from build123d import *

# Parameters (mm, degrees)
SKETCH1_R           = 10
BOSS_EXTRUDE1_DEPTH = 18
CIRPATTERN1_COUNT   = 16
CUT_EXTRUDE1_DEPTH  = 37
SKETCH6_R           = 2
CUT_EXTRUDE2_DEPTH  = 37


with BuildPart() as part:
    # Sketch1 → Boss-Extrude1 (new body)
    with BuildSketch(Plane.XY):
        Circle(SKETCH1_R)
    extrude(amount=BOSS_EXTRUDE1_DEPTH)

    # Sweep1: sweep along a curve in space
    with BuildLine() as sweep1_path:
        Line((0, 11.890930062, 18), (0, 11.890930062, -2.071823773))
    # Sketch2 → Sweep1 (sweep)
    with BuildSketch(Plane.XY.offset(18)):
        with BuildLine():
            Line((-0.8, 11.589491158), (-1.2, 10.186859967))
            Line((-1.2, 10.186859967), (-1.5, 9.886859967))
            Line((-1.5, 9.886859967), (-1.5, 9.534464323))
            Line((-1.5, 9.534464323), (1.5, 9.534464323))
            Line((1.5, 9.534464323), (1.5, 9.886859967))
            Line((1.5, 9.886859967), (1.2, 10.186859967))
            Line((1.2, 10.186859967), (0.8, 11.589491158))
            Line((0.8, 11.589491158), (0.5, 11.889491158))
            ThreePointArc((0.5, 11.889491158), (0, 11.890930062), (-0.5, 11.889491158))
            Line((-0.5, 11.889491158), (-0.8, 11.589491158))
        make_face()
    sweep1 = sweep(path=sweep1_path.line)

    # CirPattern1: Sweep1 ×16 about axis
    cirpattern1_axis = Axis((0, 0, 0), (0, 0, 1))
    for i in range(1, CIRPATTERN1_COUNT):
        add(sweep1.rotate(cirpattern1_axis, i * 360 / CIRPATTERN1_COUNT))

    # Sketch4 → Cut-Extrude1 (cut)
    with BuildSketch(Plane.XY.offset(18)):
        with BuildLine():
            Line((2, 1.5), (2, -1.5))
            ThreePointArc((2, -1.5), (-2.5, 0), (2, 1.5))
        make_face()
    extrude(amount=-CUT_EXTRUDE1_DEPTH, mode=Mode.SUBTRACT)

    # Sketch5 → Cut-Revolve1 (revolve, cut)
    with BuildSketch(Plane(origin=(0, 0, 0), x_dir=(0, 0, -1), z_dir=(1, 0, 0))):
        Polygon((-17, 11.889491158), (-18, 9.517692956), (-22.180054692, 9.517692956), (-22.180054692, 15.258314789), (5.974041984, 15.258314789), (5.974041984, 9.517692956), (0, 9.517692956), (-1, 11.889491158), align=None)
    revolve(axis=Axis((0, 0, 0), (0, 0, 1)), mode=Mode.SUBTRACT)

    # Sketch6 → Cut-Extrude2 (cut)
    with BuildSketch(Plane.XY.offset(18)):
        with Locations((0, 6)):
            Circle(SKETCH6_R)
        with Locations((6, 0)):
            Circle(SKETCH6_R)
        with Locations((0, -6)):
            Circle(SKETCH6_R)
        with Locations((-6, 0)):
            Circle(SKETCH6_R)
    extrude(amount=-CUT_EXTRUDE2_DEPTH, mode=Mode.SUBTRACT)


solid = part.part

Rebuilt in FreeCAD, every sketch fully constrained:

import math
import FreeCAD as App
import Part
import Sketcher
from FreeCAD import Vector

doc = App.newDocument("Part")
body = doc.addObject("PartDesign::Body", "Body")

# Sketch on XY plane
sketch1 = body.newObject("Sketcher::SketchObject", "Sketch")
sketch1.AttachmentSupport = (doc.getObject("XY_Plane"), [""])
sketch1.MapMode = "FlatFace"
sketch1.addGeometry(Part.Circle(Vector(0, 0, 0), Vector(0, 0, 1), 10), False)
sketch1.addConstraint(Sketcher.Constraint("Coincident", 0, 3, -1, 1))
sketch1.addConstraint(Sketcher.Constraint("Diameter", 0, 20.0))
pad1 = body.newObject("PartDesign::Pad", "Pad")
pad1.Profile = sketch1
pad1.Length = 18

# Sketch on XY plane
sketch2 = body.newObject("Sketcher::SketchObject", "Sketch001")
sketch2.AttachmentSupport = (doc.getObject("XY_Plane"), [""])
sketch2.MapMode = "FlatFace"
sketch2.AttachmentOffset = App.Placement(Vector(0, 0, 18), App.Rotation())
sketch2.addGeometry(Part.LineSegment(Vector(-0.8, 11.59, 0), Vector(-1.2, 10.19, 0)), False)
sketch2.addGeometry(Part.LineSegment(Vector(-1.2, 10.19, 0), Vector(-1.5, 9.89, 0)), False)
sketch2.addGeometry(Part.LineSegment(Vector(-1.5, 9.89, 0), Vector(-1.5, 9.53, 0)), False)
sketch2.addGeometry(Part.LineSegment(Vector(-1.5, 9.53, 0), Vector(1.5, 9.53, 0)), False)
sketch2.addGeometry(Part.LineSegment(Vector(1.5, 9.53, 0), Vector(1.5, 9.89, 0)), False)
sketch2.addGeometry(Part.LineSegment(Vector(1.5, 9.89, 0), Vector(1.2, 10.19, 0)), False)
sketch2.addGeometry(Part.LineSegment(Vector(1.2, 10.19, 0), Vector(0.8, 11.59, 0)), False)
sketch2.addGeometry(Part.LineSegment(Vector(0.8, 11.59, 0), Vector(0.5, 11.89, 0)), False)
sketch2.addGeometry(Part.ArcOfCircle(Part.Circle(Vector(0, -74.98, 0), Vector(0, 0, 1), 86.87), math.radians(89.67), math.radians(90.33)), False)
sketch2.addGeometry(Part.LineSegment(Vector(-0.5, 11.89, 0), Vector(-0.8, 11.59, 0)), False)
sketch2.addConstraint(Sketcher.Constraint("Coincident", 0, 2, 1, 1))
sketch2.addConstraint(Sketcher.Constraint("Coincident", 1, 2, 2, 1))
sketch2.addConstraint(Sketcher.Constraint("Coincident", 2, 2, 3, 1))
sketch2.addConstraint(Sketcher.Constraint("Coincident", 3, 2, 4, 1))
sketch2.addConstraint(Sketcher.Constraint("Coincident", 4, 2, 5, 1))
sketch2.addConstraint(Sketcher.Constraint("Coincident", 5, 2, 6, 1))
sketch2.addConstraint(Sketcher.Constraint("Coincident", 6, 2, 7, 1))
sketch2.addConstraint(Sketcher.Constraint("Coincident", 7, 2, 8, 1))
sketch2.addConstraint(Sketcher.Constraint("Coincident", 8, 2, 9, 1))
sketch2.addConstraint(Sketcher.Constraint("Coincident", 9, 2, 0, 1))
sketch2.addConstraint(Sketcher.Constraint("Vertical", 2))
sketch2.addConstraint(Sketcher.Constraint("Horizontal", 3))
sketch2.addConstraint(Sketcher.Constraint("Vertical", 4))
sketch2.addConstraint(Sketcher.Constraint("Symmetric", 1, 2, 4, 2, -2))
sketch2.addConstraint(Sketcher.Constraint("Symmetric", 0, 2, 5, 2, -2))
sketch2.addConstraint(Sketcher.Constraint("Symmetric", 7, 2, 8, 2, -2))
sketch2.addConstraint(Sketcher.Constraint("Symmetric", 6, 2, 9, 2, -2))
sketch2.addConstraint(Sketcher.Constraint("Perpendicular", 1, 5))
sketch2.addConstraint(Sketcher.Constraint("Parallel", 5, 7))
sketch2.addConstraint(Sketcher.Constraint("Equal", 5, 7))
sketch2.addConstraint(Sketcher.Constraint("DistanceX", 3, 1, 3, 2, 3.0))
sketch2.addConstraint(Sketcher.Constraint("DistanceX", 0, 2, 6, 2, 2.0))
sketch2.addConstraint(Sketcher.Constraint("DistanceX", 0, 2, -1, 1, 1.2))
sketch2.addConstraint(Sketcher.Constraint("Radius", 8, 86.872394))
sketch2.addConstraint(Sketcher.Constraint("DistanceY", 2, 2, 2, 1, 0.352396))
sketch2.addConstraint(Sketcher.Constraint("DistanceY", -1, 1, 0, 2, 10.18686))
sketch2.addConstraint(Sketcher.Constraint("DistanceY", -1, 1, 6, 2, 11.589491))

# Sketch on XZ plane
sketch3 = body.newObject("Sketcher::SketchObject", "Sketch002")
sketch3.AttachmentSupport = (doc.getObject("XZ_Plane"), [""])
sketch3.MapMode = "FlatFace"
sketch3.AttachmentOffset = App.Placement(Vector(0, 0, -11.89093), App.Rotation())
sketch3.addGeometry(Part.LineSegment(Vector(0, 18, 0), Vector(0, -2, 0)), False)
sketch3.addConstraint(Sketcher.Constraint("Vertical", 0))
sketch3.addConstraint(Sketcher.Constraint("PointOnObject", 0, 1, -2))
sketch3.addConstraint(Sketcher.Constraint("DistanceY", -1, 1, 0, 1, 18.0))
sketch3.addConstraint(Sketcher.Constraint("DistanceY", 0, 2, 0, 1, 20.071824))
doc.recompute()

additivepipe = body.newObject("PartDesign::AdditivePipe", "AdditivePipe")
additivepipe.Profile = sketch2
additivepipe.Spine = (sketch3, ["Edge1"])
doc.recompute()

polarpattern = body.newObject("PartDesign::PolarPattern", "PolarPattern")
polarpattern.Originals = [additivepipe]
polarpattern.Axis = (doc.getObject("Z_Axis"), [""])
polarpattern.Angle = 360
polarpattern.Occurrences = 16
body.Tip = polarpattern

# Sketch on XY plane
sketch4 = body.newObject("Sketcher::SketchObject", "Sketch003")
sketch4.AttachmentSupport = (doc.getObject("XY_Plane"), [""])
sketch4.MapMode = "FlatFace"
sketch4.AttachmentOffset = App.Placement(Vector(0, 0, 18), App.Rotation())
sketch4.addGeometry(Part.LineSegment(Vector(2, -1.5, 0), Vector(2, 1.5, 0)), False)
sketch4.addGeometry(Part.ArcOfCircle(Part.Circle(Vector(0, 0, 0), Vector(0, 0, 1), 2.5), math.radians(37), math.radians(323)), False)
sketch4.addConstraint(Sketcher.Constraint("Coincident", 0, 1, 1, 2))
sketch4.addConstraint(Sketcher.Constraint("Coincident", 1, 1, 0, 2))
sketch4.addConstraint(Sketcher.Constraint("Vertical", 0))
sketch4.addConstraint(Sketcher.Constraint("Coincident", 1, 3, -1, 1))
sketch4.addConstraint(Sketcher.Constraint("Radius", 1, 2.5))
sketch4.addConstraint(Sketcher.Constraint("DistanceY", 0, 1, 0, 2, 3.0))
pocket1 = body.newObject("PartDesign::Pocket", "Pocket")
pocket1.Profile = sketch4
pocket1.Length = 37

# Sketch on YZ plane
sketch5 = body.newObject("Sketcher::SketchObject", "Sketch004")
sketch5.AttachmentSupport = (doc.getObject("YZ_Plane"), [""])
sketch5.MapMode = "FlatFace"
sketch5.addGeometry(Part.LineSegment(Vector(9.5, 18, 0), Vector(11.9, 17, 0)), False)
sketch5.addGeometry(Part.LineSegment(Vector(11.9, 17, 0), Vector(11.9, 1, 0)), False)
sketch5.addGeometry(Part.LineSegment(Vector(11.9, 1, 0), Vector(9.5, 0, 0)), False)
sketch5.addGeometry(Part.LineSegment(Vector(9.5, 0, 0), Vector(9.5, -6, 0)), False)
sketch5.addGeometry(Part.LineSegment(Vector(9.5, -6, 0), Vector(15.3, -6, 0)), False)
sketch5.addGeometry(Part.LineSegment(Vector(15.3, -6, 0), Vector(15.3, 22.2, 0)), False)
sketch5.addGeometry(Part.LineSegment(Vector(15.3, 22.2, 0), Vector(9.5, 22.2, 0)), False)
sketch5.addGeometry(Part.LineSegment(Vector(9.5, 22.2, 0), Vector(9.5, 18, 0)), False)
sketch5.addConstraint(Sketcher.Constraint("Coincident", 0, 2, 1, 1))
sketch5.addConstraint(Sketcher.Constraint("Coincident", 1, 2, 2, 1))
sketch5.addConstraint(Sketcher.Constraint("Coincident", 2, 2, 3, 1))
sketch5.addConstraint(Sketcher.Constraint("Coincident", 3, 2, 4, 1))
sketch5.addConstraint(Sketcher.Constraint("Coincident", 4, 2, 5, 1))
sketch5.addConstraint(Sketcher.Constraint("Coincident", 5, 2, 6, 1))
sketch5.addConstraint(Sketcher.Constraint("Coincident", 6, 2, 7, 1))
sketch5.addConstraint(Sketcher.Constraint("Coincident", 7, 2, 0, 1))
sketch5.addConstraint(Sketcher.Constraint("Vertical", 1))
sketch5.addConstraint(Sketcher.Constraint("Vertical", 3))
sketch5.addConstraint(Sketcher.Constraint("Horizontal", 4))
sketch5.addConstraint(Sketcher.Constraint("Vertical", 5))
sketch5.addConstraint(Sketcher.Constraint("Horizontal", 6))
sketch5.addConstraint(Sketcher.Constraint("Vertical", 7))
sketch5.addConstraint(Sketcher.Constraint("PointOnObject", 2, 2, -1))
sketch5.addConstraint(Sketcher.Constraint("Vertical", 3, 2, 6, 2))
sketch5.addConstraint(Sketcher.Constraint("Equal", 0, 2))
sketch5.addConstraint(Sketcher.Constraint("DistanceY", 1, 2, 1, 1, 16.0))
sketch5.addConstraint(Sketcher.Constraint("DistanceY", -1, 1, 0, 2, 17.0))
sketch5.addConstraint(Sketcher.Constraint("DistanceX", 4, 1, 4, 2, 5.740622))
sketch5.addConstraint(Sketcher.Constraint("DistanceY", 3, 2, 3, 1, 5.974042))
sketch5.addConstraint(Sketcher.Constraint("DistanceX", 2, 2, 1, 2, 2.371798))
sketch5.addConstraint(Sketcher.Constraint("DistanceY", 5, 1, 5, 2, 28.154097))
sketch5.addConstraint(Sketcher.Constraint("DistanceX", -1, 1, 0, 2, 11.889491))
groove = body.newObject("PartDesign::Groove", "Groove")
groove.Profile = sketch5
groove.ReferenceAxis = (sketch5, ["V_Axis"])
groove.Angle = 360

# Sketch on XY plane
sketch6 = body.newObject("Sketcher::SketchObject", "Sketch005")
sketch6.AttachmentSupport = (doc.getObject("XY_Plane"), [""])
sketch6.MapMode = "FlatFace"
sketch6.AttachmentOffset = App.Placement(Vector(0, 0, 18), App.Rotation())
sketch6.addGeometry(Part.Circle(Vector(0, 6, 0), Vector(0, 0, 1), 2), False)
sketch6.addGeometry(Part.Circle(Vector(6, 0, 0), Vector(0, 0, 1), 2), False)
sketch6.addGeometry(Part.Circle(Vector(0, -6, 0), Vector(0, 0, 1), 2), False)
sketch6.addGeometry(Part.Circle(Vector(-6, 0, 0), Vector(0, 0, 1), 2), False)
sketch6.addConstraint(Sketcher.Constraint("Equal", 0, 1))
sketch6.addConstraint(Sketcher.Constraint("Equal", 1, 2))
sketch6.addConstraint(Sketcher.Constraint("Equal", 2, 3))
sketch6.addConstraint(Sketcher.Constraint("Symmetric", 0, 3, 2, 3, -1, 1))
sketch6.addConstraint(Sketcher.Constraint("Symmetric", 1, 3, 3, 3, -1, 1))
sketch6.addConstraint(Sketcher.Constraint("PointOnObject", 0, 3, -2))
sketch6.addConstraint(Sketcher.Constraint("PointOnObject", 1, 3, -1))
sketch6.addConstraint(Sketcher.Constraint("Diameter", 0, 4.0))
sketch6.addConstraint(Sketcher.Constraint("DistanceY", -1, 1, 0, 3, 6.0))
sketch6.addConstraint(Sketcher.Constraint("DistanceX", -1, 1, 1, 3, 6.0))
pocket2 = body.newObject("PartDesign::Pocket", "Pocket001")
pocket2.Profile = sketch6
pocket2.Length = 37

doc.recompute()
